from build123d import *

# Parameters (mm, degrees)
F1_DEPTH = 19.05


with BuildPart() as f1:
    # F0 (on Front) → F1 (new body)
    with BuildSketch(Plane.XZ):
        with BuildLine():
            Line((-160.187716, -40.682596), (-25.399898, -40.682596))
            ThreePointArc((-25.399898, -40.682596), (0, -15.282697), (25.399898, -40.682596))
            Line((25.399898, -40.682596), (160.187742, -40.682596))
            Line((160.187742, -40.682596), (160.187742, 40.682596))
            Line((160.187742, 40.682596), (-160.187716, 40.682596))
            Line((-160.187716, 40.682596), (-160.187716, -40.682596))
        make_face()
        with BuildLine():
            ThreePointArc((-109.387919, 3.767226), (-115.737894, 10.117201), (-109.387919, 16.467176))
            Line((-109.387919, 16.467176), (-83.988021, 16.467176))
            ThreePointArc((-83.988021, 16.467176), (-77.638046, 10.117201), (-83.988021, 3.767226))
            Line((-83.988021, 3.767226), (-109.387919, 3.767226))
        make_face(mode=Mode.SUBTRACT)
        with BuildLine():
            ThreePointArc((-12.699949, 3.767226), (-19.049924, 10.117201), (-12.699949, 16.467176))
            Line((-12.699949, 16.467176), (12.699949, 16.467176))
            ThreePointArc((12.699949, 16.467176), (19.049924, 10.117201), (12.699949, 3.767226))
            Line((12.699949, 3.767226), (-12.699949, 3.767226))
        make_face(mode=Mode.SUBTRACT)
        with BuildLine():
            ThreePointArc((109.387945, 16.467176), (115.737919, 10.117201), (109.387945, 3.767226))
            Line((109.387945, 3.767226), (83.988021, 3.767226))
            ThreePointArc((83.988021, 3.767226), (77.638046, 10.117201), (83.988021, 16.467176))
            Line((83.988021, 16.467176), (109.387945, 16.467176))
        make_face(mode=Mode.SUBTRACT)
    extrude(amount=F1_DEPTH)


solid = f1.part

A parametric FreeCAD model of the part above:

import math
import FreeCAD as App
import Part
import Sketcher

doc = App.newDocument("Part")
params = doc.addObject("Spreadsheet::Sheet", "Params")
for row, (alias, value) in enumerate([
    ("pad1_length", "0.75 in"),
], start=1):
    params.set(f"A{row}", alias)
    params.set(f"B{row}", "=" + value)
    params.setAlias(f"B{row}", alias)

body = doc.addObject("PartDesign::Body", "Body")

# Sketch on XZ plane
sketch1 = doc.addObject("Sketcher::SketchObject", "Sketch")
body.addObject(sketch1)
sketch1.AttachmentSupport = (doc.XZ_Plane, [""])
sketch1.MapMode = "FlatFace"
sketch1.addGeometry([
    Part.LineSegment(App.Vector(-160, -41, 0), App.Vector(-25, -41, 0)),  # 0
    Part.ArcOfCircle(Part.Circle(App.Vector(0, -41, 0), App.Vector(0, 0, 1), 25), math.radians(0), math.radians(180)),  # 1
    Part.LineSegment(App.Vector(25, -41, 0), App.Vector(160, -41, 0)),  # 2
    Part.LineSegment(App.Vector(160, -41, 0), App.Vector(160, 41, 0)),  # 3
    Part.LineSegment(App.Vector(160, 41, 0), App.Vector(-160, 41, 0)),  # 4
    Part.LineSegment(App.Vector(-160, 41, 0), App.Vector(-160, -41, 0)),  # 5
    Part.LineSegment(App.Vector(-84, 4, 0), App.Vector(-109, 4, 0)),  # 6
    Part.ArcOfCircle(Part.Circle(App.Vector(-109, 10, 0), App.Vector(0, 0, 1), 6), math.radians(90), math.radians(270)),  # 7
    Part.LineSegment(App.Vector(-109, 16, 0), App.Vector(-84, 16, 0)),  # 8
    Part.ArcOfCircle(Part.Circle(App.Vector(-84, 10, 0), App.Vector(0, 0, 1), 6), math.radians(-90), math.radians(90)),  # 9
    Part.LineSegment(App.Vector(13, 4, 0), App.Vector(-13, 4, 0)),  # 10
    Part.ArcOfCircle(Part.Circle(App.Vector(-13, 10, 0), App.Vector(0, 0, 1), 6), math.radians(90), math.radians(270)),  # 11
    Part.LineSegment(App.Vector(-13, 16, 0), App.Vector(13, 16, 0)),  # 12
    Part.ArcOfCircle(Part.Circle(App.Vector(13, 10, 0), App.Vector(0, 0, 1), 6), math.radians(-90), math.radians(90)),  # 13
    Part.LineSegment(App.Vector(84, 16, 0), App.Vector(109, 16, 0)),  # 14
    Part.ArcOfCircle(Part.Circle(App.Vector(109, 10, 0), App.Vector(0, 0, 1), 6), math.radians(-90), math.radians(90)),  # 15
    Part.LineSegment(App.Vector(109, 4, 0), App.Vector(84, 4, 0)),  # 16
    Part.ArcOfCircle(Part.Circle(App.Vector(84, 10, 0), App.Vector(0, 0, 1), 6), math.radians(90), math.radians(270)),  # 17
], False)
sketch1.addConstraint([
    Sketcher.Constraint("Coincident", 0, 2, 1, 2),
    Sketcher.Constraint("Coincident", 1, 1, 2, 1),
    Sketcher.Constraint("Coincident", 2, 2, 3, 1),
    Sketcher.Constraint("Coincident", 3, 2, 4, 1),
    Sketcher.Constraint("Coincident", 4, 2, 5, 1),
    Sketcher.Constraint("Coincident", 5, 2, 0, 1),
    Sketcher.Constraint("Tangent", 6, 2, 7, 2),
    Sketcher.Constraint("Tangent", 7, 1, 8, 1),
    Sketcher.Constraint("Tangent", 8, 2, 9, 2),
    Sketcher.Constraint("Tangent", 9, 1, 6, 1),
    Sketcher.Constraint("Tangent", 10, 2, 11, 2),
    Sketcher.Constraint("Tangent", 11, 1, 12, 1),
    Sketcher.Constraint("Tangent", 12, 2, 13, 2),
    Sketcher.Constraint("Tangent", 13, 1, 10, 1),
    Sketcher.Constraint("Tangent", 14, 2, 15, 2),
    Sketcher.Constraint("Tangent", 15, 1, 16, 1),
    Sketcher.Constraint("Tangent", 16, 2, 17, 2),
    Sketcher.Constraint("Tangent", 17, 1, 14, 1),
    Sketcher.Constraint("Horizontal", 0),
    Sketcher.Constraint("Horizontal", 2),
    Sketcher.Constraint("Vertical", 3),
    Sketcher.Constraint("Horizontal", 4),
    Sketcher.Constraint("Vertical", 5),
    Sketcher.Constraint("Horizontal", 6),
    Sketcher.Constraint("Horizontal", 8),
    Sketcher.Constraint("Horizontal", 10),
    Sketcher.Constraint("Horizontal", 12),
    Sketcher.Constraint("Horizontal", 14),
    Sketcher.Constraint("Horizontal", 16),
    Sketcher.Constraint("Equal", 9, 11),
    Sketcher.Constraint("Equal", 13, 15),
    Sketcher.Constraint("Symmetric", 9, 3, 17, 3, -2),
    Sketcher.Constraint("Symmetric", 0, 2, 1, 1, -2),
    Sketcher.Constraint("Horizontal", 9, 3, 11, 3),
    Sketcher.Constraint("Horizontal", 1, 3, 0, 2),
    Sketcher.Constraint("Equal", 8, 10),
    Sketcher.Constraint("Radius", 1, 25.399898),
    Sketcher.Constraint("DistanceX", 10, 2, 10, 1, 25.399898),
    Sketcher.Constraint("Radius", 7, 6.349975),
    Sketcher.Constraint("DistanceX", 4, 2, 4, 1, 320.375458),
    Sketcher.Constraint("DistanceY", 3, 1, 3, 2, 81.365192),
    Sketcher.Constraint("DistanceY", -1, 1, 7, 3, 10.117201),
    Sketcher.Constraint("DistanceX", 0, 1, 0, 2, 134.787818),
    Sketcher.Constraint("DistanceX", 14, 1, 14, 2, 25.399924),
    Sketcher.Constraint("DistanceX", 7, 3, -1, 1, 109.387919),
    Sketcher.Constraint("DistanceX", 11, 3, -1, 1, 12.699949),
    Sketcher.Constraint("DistanceY", 6, 2, 4, 2, 36.91537),
])
pad1 = doc.addObject("PartDesign::Pad", "Pad")
body.addObject(pad1)
pad1.Profile = sketch1
pad1.setExpression("Length", "Params.pad1_length")

doc.recompute()
